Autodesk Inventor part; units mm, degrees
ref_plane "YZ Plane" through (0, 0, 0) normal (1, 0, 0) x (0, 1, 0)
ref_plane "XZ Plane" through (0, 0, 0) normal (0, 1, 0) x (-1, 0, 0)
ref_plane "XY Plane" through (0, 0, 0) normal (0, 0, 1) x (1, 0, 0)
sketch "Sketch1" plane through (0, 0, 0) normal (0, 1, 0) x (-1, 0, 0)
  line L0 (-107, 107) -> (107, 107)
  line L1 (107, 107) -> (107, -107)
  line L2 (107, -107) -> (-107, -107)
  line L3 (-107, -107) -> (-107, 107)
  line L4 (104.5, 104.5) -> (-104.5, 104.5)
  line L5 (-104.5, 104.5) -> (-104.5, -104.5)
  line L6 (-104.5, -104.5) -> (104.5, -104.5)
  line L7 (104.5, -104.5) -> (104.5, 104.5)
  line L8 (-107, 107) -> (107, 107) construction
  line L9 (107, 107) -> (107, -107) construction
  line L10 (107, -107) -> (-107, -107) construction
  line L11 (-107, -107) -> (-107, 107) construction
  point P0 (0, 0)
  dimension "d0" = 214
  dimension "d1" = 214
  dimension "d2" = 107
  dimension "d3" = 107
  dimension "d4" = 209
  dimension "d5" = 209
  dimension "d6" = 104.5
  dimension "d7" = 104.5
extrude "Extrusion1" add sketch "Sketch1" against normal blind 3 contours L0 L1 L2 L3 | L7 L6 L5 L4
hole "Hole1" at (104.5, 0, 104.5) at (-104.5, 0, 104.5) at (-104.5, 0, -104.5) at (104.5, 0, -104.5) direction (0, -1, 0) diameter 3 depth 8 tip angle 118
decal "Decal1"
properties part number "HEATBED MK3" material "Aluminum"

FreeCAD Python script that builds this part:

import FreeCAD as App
import Part
import Sketcher

V = App.Vector
Q = App.Units.Quantity


def add_polygon(sketch, points):
    """Adds a closed chain of lines whose ends are joined by coincident constraints."""
    first, n = sketch.GeometryCount, len(points)
    for a, b in zip(points, points[1:] + points[:1]):
        sketch.addGeometry(Part.LineSegment(App.Vector(*a, 0), App.Vector(*b, 0)), False)
    for i in range(n):
        sketch.addConstraint(Sketcher.Constraint("Coincident", first + i, 2, first + (i + 1) % n, 1))

doc = App.newDocument("Part")
body = doc.addObject("PartDesign::Body", "Body")

# Sketch on XZ plane
sketch1 = body.newObject("Sketcher::SketchObject", "Sketch")
sketch1.AttachmentSupport = (doc.getObject("XZ_Plane"), [""])
sketch1.MapMode = "FlatFace"
add_polygon(sketch1, [(-107, 107), (107, 107), (107, -107), (-107, -107)])  # lines 0-3
sketch1.addConstraint(Sketcher.Constraint("Horizontal", 0))
sketch1.addConstraint(Sketcher.Constraint("Vertical", 1))
sketch1.addConstraint(Sketcher.Constraint("Horizontal", 2))
sketch1.addConstraint(Sketcher.Constraint("Vertical", 3))
sketch1.addConstraint(Sketcher.Constraint("Symmetric", 0, 2, 2, 2, -1, 1))
sketch1.addConstraint(Sketcher.Constraint("Equal", 2, 1))
sketch1.addConstraint(Sketcher.Constraint("DistanceX", 0, 1, 0, 2, Q("214 mm")))
pad1 = body.newObject("PartDesign::Pad", "Pad")
pad1.Profile = sketch1
pad1.Length = 3

# Sketch on XZ plane
sketch2 = body.newObject("Sketcher::SketchObject", "Sketch001")
sketch2.AttachmentSupport = (doc.getObject("XZ_Plane"), [""])
sketch2.MapMode = "FlatFace"
sketch2.addGeometry(Part.Circle(V(104.5, 104.5, 0), V(0, 0, 1), 1.5), False)
sketch2.addGeometry(Part.Circle(V(-104.5, 104.5, 0), V(0, 0, 1), 1.5), False)
sketch2.addGeometry(Part.Circle(V(-104.5, -104.5, 0), V(0, 0, 1), 1.5), False)
sketch2.addGeometry(Part.Circle(V(104.5, -104.5, 0), V(0, 0, 1), 1.5), False)
sketch2.addConstraint(Sketcher.Constraint("Equal", 0, 1))
sketch2.addConstraint(Sketcher.Constraint("Equal", 1, 2))
sketch2.addConstraint(Sketcher.Constraint("Equal", 2, 3))
sketch2.addConstraint(Sketcher.Constraint("Symmetric", 0, 3, 2, 3, -1, 1))
sketch2.addConstraint(Sketcher.Constraint("Symmetric", 1, 3, 3, 3, -1, 1))
sketch2.addConstraint(Sketcher.Constraint("Symmetric", 0, 3, 1, 3, -2))
sketch2.addConstraint(Sketcher.Constraint("Diameter", 0, Q("3 mm")))
sketch2.addConstraint(Sketcher.Constraint("DistanceX", 1, 3, 0, 3, Q("209 mm")))
sketch2.addConstraint(Sketcher.Constraint("DistanceY", 2, 3, 1, 3, Q("209 mm")))
doc.recompute()
hole = body.newObject("PartDesign::Hole", "Hole")
hole.Profile = sketch2
hole.ThreadType = "None"
hole.Diameter = 3
hole.DepthType = "Dimension"
hole.Depth = 8
hole.DrillPoint = "Angled"
hole.DrillPointAngle = 118
hole.Reversed = True

doc.recompute()
